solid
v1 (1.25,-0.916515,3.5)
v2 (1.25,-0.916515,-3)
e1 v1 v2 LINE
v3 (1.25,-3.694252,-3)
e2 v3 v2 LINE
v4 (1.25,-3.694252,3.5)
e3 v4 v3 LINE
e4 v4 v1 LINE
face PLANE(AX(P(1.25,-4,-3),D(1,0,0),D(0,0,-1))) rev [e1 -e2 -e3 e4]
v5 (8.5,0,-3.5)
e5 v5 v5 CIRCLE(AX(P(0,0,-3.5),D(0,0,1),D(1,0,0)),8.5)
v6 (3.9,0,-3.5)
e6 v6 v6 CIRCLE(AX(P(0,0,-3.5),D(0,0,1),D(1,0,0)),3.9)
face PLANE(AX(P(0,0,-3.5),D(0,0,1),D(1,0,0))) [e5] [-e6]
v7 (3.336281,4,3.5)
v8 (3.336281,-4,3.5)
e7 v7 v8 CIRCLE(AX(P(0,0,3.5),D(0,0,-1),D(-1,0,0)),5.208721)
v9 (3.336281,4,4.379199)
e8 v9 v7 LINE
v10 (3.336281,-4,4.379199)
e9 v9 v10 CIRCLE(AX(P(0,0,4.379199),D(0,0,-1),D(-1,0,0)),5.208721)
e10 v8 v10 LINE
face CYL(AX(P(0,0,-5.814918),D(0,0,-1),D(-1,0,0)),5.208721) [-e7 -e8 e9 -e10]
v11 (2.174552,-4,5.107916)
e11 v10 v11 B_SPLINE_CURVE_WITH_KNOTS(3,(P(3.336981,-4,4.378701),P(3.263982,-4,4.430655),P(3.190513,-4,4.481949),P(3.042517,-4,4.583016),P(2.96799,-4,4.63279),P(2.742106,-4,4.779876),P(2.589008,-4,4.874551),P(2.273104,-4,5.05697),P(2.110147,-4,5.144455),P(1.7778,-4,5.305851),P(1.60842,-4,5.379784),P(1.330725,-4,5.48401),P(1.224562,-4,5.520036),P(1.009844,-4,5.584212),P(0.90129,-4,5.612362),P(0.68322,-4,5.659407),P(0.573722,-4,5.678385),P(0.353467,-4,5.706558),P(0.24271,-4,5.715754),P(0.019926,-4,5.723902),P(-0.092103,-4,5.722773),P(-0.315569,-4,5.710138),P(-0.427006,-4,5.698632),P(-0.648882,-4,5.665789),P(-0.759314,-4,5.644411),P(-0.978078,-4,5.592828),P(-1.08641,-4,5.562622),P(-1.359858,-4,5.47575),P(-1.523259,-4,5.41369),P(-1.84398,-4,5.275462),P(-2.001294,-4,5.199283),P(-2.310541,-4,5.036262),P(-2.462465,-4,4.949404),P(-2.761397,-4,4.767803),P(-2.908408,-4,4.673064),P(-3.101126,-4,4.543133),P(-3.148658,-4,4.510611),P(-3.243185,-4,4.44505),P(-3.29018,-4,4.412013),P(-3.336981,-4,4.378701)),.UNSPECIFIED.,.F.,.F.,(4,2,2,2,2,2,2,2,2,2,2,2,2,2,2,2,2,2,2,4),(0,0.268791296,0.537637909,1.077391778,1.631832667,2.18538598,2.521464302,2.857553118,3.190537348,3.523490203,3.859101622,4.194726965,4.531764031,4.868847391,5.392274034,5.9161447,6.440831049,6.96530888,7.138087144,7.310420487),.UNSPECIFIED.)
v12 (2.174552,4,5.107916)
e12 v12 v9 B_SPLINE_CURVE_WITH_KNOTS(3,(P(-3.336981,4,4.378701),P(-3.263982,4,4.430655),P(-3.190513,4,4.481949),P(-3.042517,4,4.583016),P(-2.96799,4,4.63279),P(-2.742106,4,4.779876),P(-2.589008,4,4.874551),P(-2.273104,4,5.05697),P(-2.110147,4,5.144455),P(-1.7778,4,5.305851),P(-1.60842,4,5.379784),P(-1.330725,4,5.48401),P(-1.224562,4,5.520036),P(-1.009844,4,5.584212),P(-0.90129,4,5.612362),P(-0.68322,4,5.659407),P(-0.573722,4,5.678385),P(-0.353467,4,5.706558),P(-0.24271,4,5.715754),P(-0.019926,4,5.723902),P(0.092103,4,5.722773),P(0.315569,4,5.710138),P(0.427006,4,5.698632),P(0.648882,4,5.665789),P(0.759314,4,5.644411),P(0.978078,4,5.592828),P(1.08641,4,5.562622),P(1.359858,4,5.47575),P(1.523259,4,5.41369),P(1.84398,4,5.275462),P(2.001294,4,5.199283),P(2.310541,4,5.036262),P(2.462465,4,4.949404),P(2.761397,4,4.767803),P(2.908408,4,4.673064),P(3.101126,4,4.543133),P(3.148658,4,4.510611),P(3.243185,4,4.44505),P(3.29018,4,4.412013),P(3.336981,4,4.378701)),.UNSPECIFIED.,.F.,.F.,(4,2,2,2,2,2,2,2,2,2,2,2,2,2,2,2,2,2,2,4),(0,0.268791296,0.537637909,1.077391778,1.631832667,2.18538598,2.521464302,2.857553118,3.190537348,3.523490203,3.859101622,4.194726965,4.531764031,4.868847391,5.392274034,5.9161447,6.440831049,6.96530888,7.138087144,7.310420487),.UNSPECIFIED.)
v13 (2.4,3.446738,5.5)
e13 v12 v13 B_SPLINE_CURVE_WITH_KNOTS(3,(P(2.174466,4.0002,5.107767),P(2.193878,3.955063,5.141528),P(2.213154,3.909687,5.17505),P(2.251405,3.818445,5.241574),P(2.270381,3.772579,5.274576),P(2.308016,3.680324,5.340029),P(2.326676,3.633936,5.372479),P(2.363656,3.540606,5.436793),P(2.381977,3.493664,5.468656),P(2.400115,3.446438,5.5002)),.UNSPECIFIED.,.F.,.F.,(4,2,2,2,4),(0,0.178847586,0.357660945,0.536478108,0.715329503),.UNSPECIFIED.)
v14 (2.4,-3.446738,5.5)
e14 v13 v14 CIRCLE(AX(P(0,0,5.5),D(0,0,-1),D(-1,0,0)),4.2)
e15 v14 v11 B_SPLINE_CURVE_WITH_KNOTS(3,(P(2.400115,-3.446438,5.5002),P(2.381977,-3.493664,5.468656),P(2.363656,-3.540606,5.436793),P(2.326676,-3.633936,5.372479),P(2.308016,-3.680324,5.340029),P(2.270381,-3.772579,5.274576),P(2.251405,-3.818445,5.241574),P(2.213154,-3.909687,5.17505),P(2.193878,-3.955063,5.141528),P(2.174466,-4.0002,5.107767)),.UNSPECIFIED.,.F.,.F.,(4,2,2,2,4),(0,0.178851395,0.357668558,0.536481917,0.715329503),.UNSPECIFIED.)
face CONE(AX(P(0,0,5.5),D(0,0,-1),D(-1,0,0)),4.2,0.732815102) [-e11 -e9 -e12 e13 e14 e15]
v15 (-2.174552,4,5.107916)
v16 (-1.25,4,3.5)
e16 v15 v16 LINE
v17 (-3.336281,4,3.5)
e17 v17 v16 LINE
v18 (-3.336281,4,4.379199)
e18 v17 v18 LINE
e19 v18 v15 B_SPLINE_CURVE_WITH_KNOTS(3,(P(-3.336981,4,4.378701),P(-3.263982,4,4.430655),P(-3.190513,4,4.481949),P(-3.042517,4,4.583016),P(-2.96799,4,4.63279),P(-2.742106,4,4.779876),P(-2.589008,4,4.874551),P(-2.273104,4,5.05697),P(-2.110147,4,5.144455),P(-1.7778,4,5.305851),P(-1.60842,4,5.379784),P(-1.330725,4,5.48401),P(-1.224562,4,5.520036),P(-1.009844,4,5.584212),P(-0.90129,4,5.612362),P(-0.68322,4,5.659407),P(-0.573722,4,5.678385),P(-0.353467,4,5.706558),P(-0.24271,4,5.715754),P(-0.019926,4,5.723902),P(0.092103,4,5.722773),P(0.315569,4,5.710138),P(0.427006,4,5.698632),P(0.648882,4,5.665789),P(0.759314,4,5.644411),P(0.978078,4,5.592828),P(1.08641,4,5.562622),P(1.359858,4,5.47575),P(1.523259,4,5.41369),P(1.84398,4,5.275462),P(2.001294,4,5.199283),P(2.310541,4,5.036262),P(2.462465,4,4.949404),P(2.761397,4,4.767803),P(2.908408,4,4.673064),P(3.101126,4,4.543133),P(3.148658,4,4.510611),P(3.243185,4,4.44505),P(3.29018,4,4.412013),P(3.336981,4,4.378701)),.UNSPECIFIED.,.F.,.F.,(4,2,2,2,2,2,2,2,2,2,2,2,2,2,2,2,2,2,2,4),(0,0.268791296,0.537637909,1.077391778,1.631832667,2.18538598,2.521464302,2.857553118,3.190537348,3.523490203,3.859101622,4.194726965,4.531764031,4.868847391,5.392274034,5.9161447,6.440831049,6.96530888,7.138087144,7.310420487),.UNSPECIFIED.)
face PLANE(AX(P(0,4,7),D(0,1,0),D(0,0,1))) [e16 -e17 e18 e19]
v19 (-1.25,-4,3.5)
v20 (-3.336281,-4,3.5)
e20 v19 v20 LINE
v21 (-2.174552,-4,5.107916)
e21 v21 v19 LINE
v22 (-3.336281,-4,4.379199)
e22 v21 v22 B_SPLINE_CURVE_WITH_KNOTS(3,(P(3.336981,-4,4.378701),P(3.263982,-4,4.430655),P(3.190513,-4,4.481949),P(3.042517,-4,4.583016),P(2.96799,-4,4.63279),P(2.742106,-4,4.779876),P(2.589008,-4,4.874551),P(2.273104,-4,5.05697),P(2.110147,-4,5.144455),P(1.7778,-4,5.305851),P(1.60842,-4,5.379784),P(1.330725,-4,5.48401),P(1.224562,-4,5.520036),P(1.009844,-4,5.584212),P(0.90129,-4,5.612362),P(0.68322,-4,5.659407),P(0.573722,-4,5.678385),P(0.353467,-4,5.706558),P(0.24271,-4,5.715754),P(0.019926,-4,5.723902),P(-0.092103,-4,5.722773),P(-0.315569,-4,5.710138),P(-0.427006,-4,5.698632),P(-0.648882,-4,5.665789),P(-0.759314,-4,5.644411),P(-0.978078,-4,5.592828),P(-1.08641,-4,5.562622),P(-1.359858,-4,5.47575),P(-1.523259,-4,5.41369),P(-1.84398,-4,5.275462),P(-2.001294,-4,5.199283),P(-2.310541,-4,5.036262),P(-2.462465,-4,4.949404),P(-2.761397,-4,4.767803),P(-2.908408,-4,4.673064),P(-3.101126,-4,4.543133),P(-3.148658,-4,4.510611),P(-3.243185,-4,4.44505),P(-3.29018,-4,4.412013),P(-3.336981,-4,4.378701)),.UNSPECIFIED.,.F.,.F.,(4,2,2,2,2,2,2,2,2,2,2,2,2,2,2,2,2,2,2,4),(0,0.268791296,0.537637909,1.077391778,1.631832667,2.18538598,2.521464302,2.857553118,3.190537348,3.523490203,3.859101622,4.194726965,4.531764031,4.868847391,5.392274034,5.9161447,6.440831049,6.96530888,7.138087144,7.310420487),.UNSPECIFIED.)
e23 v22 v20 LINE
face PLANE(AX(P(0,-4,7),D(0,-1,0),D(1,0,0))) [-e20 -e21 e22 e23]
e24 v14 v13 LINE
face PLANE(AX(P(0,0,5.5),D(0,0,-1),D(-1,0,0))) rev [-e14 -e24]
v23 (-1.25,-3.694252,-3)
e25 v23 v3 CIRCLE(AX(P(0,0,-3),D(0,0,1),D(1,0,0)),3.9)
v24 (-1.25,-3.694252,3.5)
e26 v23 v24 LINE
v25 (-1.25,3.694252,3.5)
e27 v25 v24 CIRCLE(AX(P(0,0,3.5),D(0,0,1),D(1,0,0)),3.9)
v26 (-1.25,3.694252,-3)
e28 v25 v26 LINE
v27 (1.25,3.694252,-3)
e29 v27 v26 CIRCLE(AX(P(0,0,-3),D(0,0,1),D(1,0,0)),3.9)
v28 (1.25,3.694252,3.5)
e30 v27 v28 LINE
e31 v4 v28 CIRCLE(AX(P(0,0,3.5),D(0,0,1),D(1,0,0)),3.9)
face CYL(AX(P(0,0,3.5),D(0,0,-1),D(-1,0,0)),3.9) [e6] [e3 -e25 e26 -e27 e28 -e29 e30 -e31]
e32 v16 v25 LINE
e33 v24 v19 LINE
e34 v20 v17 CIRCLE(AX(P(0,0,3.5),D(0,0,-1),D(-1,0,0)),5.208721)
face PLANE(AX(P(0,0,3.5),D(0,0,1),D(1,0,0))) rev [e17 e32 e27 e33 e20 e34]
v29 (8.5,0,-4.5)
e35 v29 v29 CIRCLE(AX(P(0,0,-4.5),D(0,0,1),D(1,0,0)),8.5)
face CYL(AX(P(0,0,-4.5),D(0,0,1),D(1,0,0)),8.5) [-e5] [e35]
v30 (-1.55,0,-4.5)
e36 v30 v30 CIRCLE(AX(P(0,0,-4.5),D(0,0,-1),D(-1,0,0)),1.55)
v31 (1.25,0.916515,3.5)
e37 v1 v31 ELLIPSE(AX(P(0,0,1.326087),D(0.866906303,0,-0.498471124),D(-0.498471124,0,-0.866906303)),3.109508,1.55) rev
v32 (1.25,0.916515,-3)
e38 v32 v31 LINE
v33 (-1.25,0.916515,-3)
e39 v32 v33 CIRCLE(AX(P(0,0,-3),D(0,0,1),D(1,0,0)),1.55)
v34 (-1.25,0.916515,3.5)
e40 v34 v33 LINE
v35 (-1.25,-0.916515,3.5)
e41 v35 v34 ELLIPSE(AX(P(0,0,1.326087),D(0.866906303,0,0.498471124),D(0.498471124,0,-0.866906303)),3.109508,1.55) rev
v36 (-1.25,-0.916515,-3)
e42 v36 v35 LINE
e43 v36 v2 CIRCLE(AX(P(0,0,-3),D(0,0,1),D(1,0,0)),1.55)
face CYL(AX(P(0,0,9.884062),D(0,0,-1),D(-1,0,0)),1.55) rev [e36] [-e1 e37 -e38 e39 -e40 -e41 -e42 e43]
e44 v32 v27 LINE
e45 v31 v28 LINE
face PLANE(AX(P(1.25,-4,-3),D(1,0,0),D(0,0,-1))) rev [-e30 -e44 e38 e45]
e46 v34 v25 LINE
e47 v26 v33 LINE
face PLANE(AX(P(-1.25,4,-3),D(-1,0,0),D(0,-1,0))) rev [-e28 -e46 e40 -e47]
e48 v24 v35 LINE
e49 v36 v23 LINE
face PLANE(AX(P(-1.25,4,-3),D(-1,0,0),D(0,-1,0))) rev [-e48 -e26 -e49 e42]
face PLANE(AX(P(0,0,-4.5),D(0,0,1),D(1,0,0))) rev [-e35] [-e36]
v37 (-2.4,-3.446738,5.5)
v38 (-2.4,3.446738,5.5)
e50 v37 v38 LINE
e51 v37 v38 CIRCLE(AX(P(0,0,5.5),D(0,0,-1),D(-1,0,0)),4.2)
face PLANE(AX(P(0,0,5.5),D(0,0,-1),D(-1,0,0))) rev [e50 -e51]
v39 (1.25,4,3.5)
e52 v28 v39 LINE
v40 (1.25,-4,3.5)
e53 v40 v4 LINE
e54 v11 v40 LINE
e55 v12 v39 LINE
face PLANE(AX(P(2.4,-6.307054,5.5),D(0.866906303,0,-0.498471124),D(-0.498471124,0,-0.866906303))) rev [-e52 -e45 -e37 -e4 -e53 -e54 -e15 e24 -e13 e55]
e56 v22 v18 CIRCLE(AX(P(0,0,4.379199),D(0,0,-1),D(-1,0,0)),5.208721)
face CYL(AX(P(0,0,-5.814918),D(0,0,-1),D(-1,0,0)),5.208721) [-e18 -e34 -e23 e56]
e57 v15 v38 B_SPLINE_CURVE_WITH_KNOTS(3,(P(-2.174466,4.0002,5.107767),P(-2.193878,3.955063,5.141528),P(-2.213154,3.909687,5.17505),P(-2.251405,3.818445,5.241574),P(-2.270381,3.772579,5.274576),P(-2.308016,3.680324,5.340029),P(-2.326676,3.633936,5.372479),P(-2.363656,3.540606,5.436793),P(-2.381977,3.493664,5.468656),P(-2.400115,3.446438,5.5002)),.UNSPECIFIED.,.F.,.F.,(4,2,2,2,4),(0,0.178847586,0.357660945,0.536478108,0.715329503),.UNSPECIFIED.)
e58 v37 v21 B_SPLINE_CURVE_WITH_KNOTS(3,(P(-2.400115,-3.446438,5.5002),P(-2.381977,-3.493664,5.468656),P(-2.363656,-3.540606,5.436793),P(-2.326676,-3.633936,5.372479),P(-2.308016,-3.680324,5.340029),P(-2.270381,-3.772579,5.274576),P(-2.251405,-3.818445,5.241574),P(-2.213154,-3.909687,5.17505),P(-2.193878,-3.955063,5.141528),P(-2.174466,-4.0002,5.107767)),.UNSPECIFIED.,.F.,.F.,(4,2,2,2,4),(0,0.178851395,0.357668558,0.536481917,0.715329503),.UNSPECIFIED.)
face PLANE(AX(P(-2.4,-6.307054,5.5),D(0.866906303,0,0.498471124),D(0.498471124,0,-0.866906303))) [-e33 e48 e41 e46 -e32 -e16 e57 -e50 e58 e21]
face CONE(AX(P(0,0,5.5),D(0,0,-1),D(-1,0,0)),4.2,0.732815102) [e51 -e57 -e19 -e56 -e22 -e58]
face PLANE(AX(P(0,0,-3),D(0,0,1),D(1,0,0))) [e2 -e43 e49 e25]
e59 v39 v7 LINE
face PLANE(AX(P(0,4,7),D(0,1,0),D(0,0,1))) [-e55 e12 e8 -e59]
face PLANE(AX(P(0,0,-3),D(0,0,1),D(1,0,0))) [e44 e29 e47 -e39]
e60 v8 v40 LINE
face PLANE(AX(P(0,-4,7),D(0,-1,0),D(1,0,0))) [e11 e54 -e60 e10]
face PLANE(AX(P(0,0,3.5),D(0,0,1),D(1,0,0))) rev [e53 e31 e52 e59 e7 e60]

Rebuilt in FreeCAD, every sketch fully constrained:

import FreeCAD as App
import Part
import Sketcher

V = App.Vector
Q = App.Units.Quantity


def add_polygon(sketch, points):
    """Adds a closed chain of lines whose ends are joined by coincident constraints."""
    first, n = sketch.GeometryCount, len(points)
    for a, b in zip(points, points[1:] + points[:1]):
        sketch.addGeometry(Part.LineSegment(App.Vector(*a, 0), App.Vector(*b, 0)), False)
    for i in range(n):
        sketch.addConstraint(Sketcher.Constraint("Coincident", first + i, 2, first + (i + 1) % n, 1))

doc = App.newDocument("Part")
body = doc.addObject("PartDesign::Body", "Body")

# Sketch on XY plane
sketch1 = body.newObject("Sketcher::SketchObject", "Sketch")
sketch1.AttachmentSupport = (doc.getObject("XY_Plane"), [""])
sketch1.MapMode = "FlatFace"
sketch1.addGeometry(Part.Circle(V(0, 0, 0), V(0, 0, 1), 8), False)
sketch1.addConstraint(Sketcher.Constraint("Coincident", 0, 3, -1, 1))
sketch1.addConstraint(Sketcher.Constraint("Diameter", 0, Q("17 mm")))
pad1 = body.newObject("PartDesign::Pad", "Pad")
pad1.Profile = sketch1
pad1.Type = "TwoLengths"
pad1.Length = 6
pad1.Length2 = 4.5

# Sketch on XY plane
sketch2 = body.newObject("Sketcher::SketchObject", "Sketch001")
sketch2.AttachmentSupport = (doc.getObject("XY_Plane"), [""])
sketch2.MapMode = "FlatFace"
sketch2.addGeometry(Part.Circle(V(0, 0, 0), V(0, 0, 1), 8.5), False)
sketch2.addGeometry(Part.Circle(V(0, 0, 0), V(0, 0, 1), 3.9), False)
sketch2.addConstraint(Sketcher.Constraint("Coincident", 0, 3, -1, 1))
sketch2.addConstraint(Sketcher.Constraint("Coincident", 1, 3, -1, 1))
sketch2.addConstraint(Sketcher.Constraint("Diameter", 0, Q("17 mm")))
sketch2.addConstraint(Sketcher.Constraint("Diameter", 1, Q("7.8 mm")))
pocket1 = body.newObject("PartDesign::Pocket", "Pocket")
pocket1.Profile = sketch2
pocket1.Type = "TwoLengths"
pocket1.Length = 3.5
pocket1.Length2 = 3.5
pocket1.Reversed = True

# Sketch on XY plane
sketch3 = body.newObject("Sketcher::SketchObject", "Sketch002")
sketch3.AttachmentSupport = (doc.getObject("XY_Plane"), [""])
sketch3.MapMode = "FlatFace"
sketch3.AttachmentOffset = App.Placement(V(0, 0, 3.5), App.Rotation())
sketch3.addGeometry(Part.Circle(V(0, 0, 0), V(0, 0, 1), 8), False)
sketch3.addGeometry(Part.Circle(V(0, 0, 0), V(0, 0, 1), 6), False)
sketch3.addConstraint(Sketcher.Constraint("Coincident", 0, 3, -1, 1))
sketch3.addConstraint(Sketcher.Constraint("Coincident", 1, 3, -1, 1))
sketch3.addConstraint(Sketcher.Constraint("Diameter", 0, Q("17 mm")))
sketch3.addConstraint(Sketcher.Constraint("Diameter", 1, Q("12 mm")))
pocket2 = body.newObject("PartDesign::Pocket", "Pocket001")
pocket2.Profile = sketch3
pocket2.Length = 3.5
pocket2.Reversed = True

# Sketch on YZ plane
sketch4 = body.newObject("Sketcher::SketchObject", "Sketch003")
sketch4.AttachmentSupport = (doc.getObject("YZ_Plane"), [""])
sketch4.MapMode = "FlatFace"
add_polygon(sketch4, [(0, 5.5), (4.2, 5.5), (5.2, 4.4), (5.2, 3.5), (6, 3.5), (6, 6), (0, 6)])  # lines 0-6
sketch4.addConstraint(Sketcher.Constraint("Horizontal", 0))
sketch4.addConstraint(Sketcher.Constraint("Vertical", 2))
sketch4.addConstraint(Sketcher.Constraint("Horizontal", 3))
sketch4.addConstraint(Sketcher.Constraint("Vertical", 4))
sketch4.addConstraint(Sketcher.Constraint("Horizontal", 5))
sketch4.addConstraint(Sketcher.Constraint("Vertical", 6))
sketch4.addConstraint(Sketcher.Constraint("PointOnObject", 5, 2, -2))
sketch4.addConstraint(Sketcher.Constraint("DistanceX", 5, 2, 5, 1, Q("6 mm")))
sketch4.addConstraint(Sketcher.Constraint("DistanceX", 0, 1, 0, 2, Q("4.2 mm")))
sketch4.addConstraint(Sketcher.Constraint("DistanceY", 4, 1, 4, 2, Q("2.5 mm")))
sketch4.addConstraint(Sketcher.Constraint("DistanceY", 6, 2, 6, 1, Q("0.5 mm")))
sketch4.addConstraint(Sketcher.Constraint("DistanceY", -1, 1, 4, 2, Q("6 mm")))
sketch4.addConstraint(Sketcher.Constraint("DistanceY", 2, 2, 2, 1, Q("0.879199 mm")))
sketch4.addConstraint(Sketcher.Constraint("DistanceX", 3, 1, 3, 2, Q("0.791279 mm")))
groove = body.newObject("PartDesign::Groove", "Groove")
groove.Profile = sketch4
groove.ReferenceAxis = (sketch4, ["V_Axis"])
groove.Angle = 360

# Sketch on XY plane
sketch5 = body.newObject("Sketcher::SketchObject", "Sketch004")
sketch5.AttachmentSupport = (doc.getObject("XY_Plane"), [""])
sketch5.MapMode = "FlatFace"
sketch5.AttachmentOffset = App.Placement(V(0, 0, 3.5), App.Rotation())
add_polygon(sketch5, [(10, 4), (-10, 4), (-10, 8.6), (10, 8.6)])  # lines 0-3
add_polygon(sketch5, [(-10, -4), (10, -4), (10, -8.4), (-10, -8.4)])  # lines 4-7
sketch5.addConstraint(Sketcher.Constraint("Horizontal", 0))
sketch5.addConstraint(Sketcher.Constraint("Vertical", 1))
sketch5.addConstraint(Sketcher.Constraint("Horizontal", 2))
sketch5.addConstraint(Sketcher.Constraint("Vertical", 3))
sketch5.addConstraint(Sketcher.Constraint("Horizontal", 4))
sketch5.addConstraint(Sketcher.Constraint("Vertical", 5))
sketch5.addConstraint(Sketcher.Constraint("Horizontal", 6))
sketch5.addConstraint(Sketcher.Constraint("Vertical", 7))
sketch5.addConstraint(Sketcher.Constraint("Symmetric", 0, 2, 4, 2, -1, 1))
sketch5.addConstraint(Sketcher.Constraint("Vertical", 3, 2, 4, 2))
sketch5.addConstraint(Sketcher.Constraint("Vertical", 1, 2, 6, 2))
sketch5.addConstraint(Sketcher.Constraint("DistanceX", 0, 2, 0, 1, Q("20 mm")))
sketch5.addConstraint(Sketcher.Constraint("DistanceY", -1, 1, 0, 2, Q("4 mm")))
sketch5.addConstraint(Sketcher.Constraint("DistanceY", 1, 1, 1, 2, Q("4.647446 mm")))
sketch5.addConstraint(Sketcher.Constraint("DistanceY", 5, 2, 5, 1, Q("4.418804 mm")))
pocket3 = body.newObject("PartDesign::Pocket", "Pocket002")
pocket3.Profile = sketch5
pocket3.Length = 3.5
pocket3.Reversed = True

# Sketch on XY plane
sketch6 = body.newObject("Sketcher::SketchObject", "Sketch005")
sketch6.AttachmentSupport = (doc.getObject("XY_Plane"), [""])
sketch6.MapMode = "FlatFace"
sketch6.AttachmentOffset = App.Placement(V(0, 0, 5.5), App.Rotation())
add_polygon(sketch6, [(-1.2, 4), (-1.2, -4), (1.2, -4), (1.2, 4)])  # lines 0-3
sketch6.addConstraint(Sketcher.Constraint("Vertical", 0))
sketch6.addConstraint(Sketcher.Constraint("Horizontal", 1))
sketch6.addConstraint(Sketcher.Constraint("Vertical", 2))
sketch6.addConstraint(Sketcher.Constraint("Horizontal", 3))
sketch6.addConstraint(Sketcher.Constraint("Symmetric", 0, 2, 2, 2, -1, 1))
sketch6.addConstraint(Sketcher.Constraint("DistanceY", 0, 2, 0, 1, Q("8 mm")))
sketch6.addConstraint(Sketcher.Constraint("DistanceX", 1, 1, 1, 2, Q("2.5 mm")))
pocket4 = body.newObject("PartDesign::Pocket", "Pocket003")
pocket4.Profile = sketch6
pocket4.Length = 8.5

# Sketch on XY plane
sketch7 = body.newObject("Sketcher::SketchObject", "Sketch006")
sketch7.AttachmentSupport = (doc.getObject("XY_Plane"), [""])
sketch7.MapMode = "FlatFace"
sketch7.AttachmentOffset = App.Placement(V(0, 0, -4.5), App.Rotation())
sketch7.addGeometry(Part.Circle(V(0, 0, 0), V(0, 0, 1), 1.6), False)
sketch7.addConstraint(Sketcher.Constraint("Coincident", 0, 3, -1, 1))
sketch7.addConstraint(Sketcher.Constraint("Diameter", 0, Q("3.1 mm")))
pocket5 = body.newObject("PartDesign::Pocket", "Pocket004")
pocket5.Profile = sketch7
pocket5.Length = 10
pocket5.Reversed = True

# Sketch on XZ plane
sketch8 = body.newObject("Sketcher::SketchObject", "Sketch007")
sketch8.AttachmentSupport = (doc.getObject("XZ_Plane"), [""])
sketch8.MapMode = "FlatFace"
sketch8.AttachmentOffset = App.Placement(V(0, 0, -4), App.Rotation())
add_polygon(sketch8, [(-1.2, 5.5), (-1.2, 3.5), (-2.4, 5.5)])  # lines 0-2
add_polygon(sketch8, [(1.2, 5.5), (2.4, 5.5), (1.2, 3.5)])  # lines 3-5
sketch8.addConstraint(Sketcher.Constraint("Vertical", 0))
sketch8.addConstraint(Sketcher.Constraint("Horizontal", 2))
sketch8.addConstraint(Sketcher.Constraint("Horizontal", 3))
sketch8.addConstraint(Sketcher.Constraint("Vertical", 5))
sketch8.addConstraint(Sketcher.Constraint("Symmetric", 1, 2, 3, 2, -2))
sketch8.addConstraint(Sketcher.Constraint("Symmetric", 0, 2, 4, 2, -2))
sketch8.addConstraint(Sketcher.Constraint("DistanceY", 0, 2, 0, 1, Q("2 mm")))
sketch8.addConstraint(Sketcher.Constraint("DistanceX", 2, 1, 2, 2, Q("1.15 mm")))
sketch8.addConstraint(Sketcher.Constraint("DistanceY", -1, 1, 0, 2, Q("3.5 mm")))
sketch8.addConstraint(Sketcher.Constraint("DistanceX", 1, 2, -1, 1, Q("2.4 mm")))
pocket6 = body.newObject("PartDesign::Pocket", "Pocket005")
pocket6.Profile = sketch8
pocket6.Length = 8
pocket6.Reversed = True

doc.recompute()
